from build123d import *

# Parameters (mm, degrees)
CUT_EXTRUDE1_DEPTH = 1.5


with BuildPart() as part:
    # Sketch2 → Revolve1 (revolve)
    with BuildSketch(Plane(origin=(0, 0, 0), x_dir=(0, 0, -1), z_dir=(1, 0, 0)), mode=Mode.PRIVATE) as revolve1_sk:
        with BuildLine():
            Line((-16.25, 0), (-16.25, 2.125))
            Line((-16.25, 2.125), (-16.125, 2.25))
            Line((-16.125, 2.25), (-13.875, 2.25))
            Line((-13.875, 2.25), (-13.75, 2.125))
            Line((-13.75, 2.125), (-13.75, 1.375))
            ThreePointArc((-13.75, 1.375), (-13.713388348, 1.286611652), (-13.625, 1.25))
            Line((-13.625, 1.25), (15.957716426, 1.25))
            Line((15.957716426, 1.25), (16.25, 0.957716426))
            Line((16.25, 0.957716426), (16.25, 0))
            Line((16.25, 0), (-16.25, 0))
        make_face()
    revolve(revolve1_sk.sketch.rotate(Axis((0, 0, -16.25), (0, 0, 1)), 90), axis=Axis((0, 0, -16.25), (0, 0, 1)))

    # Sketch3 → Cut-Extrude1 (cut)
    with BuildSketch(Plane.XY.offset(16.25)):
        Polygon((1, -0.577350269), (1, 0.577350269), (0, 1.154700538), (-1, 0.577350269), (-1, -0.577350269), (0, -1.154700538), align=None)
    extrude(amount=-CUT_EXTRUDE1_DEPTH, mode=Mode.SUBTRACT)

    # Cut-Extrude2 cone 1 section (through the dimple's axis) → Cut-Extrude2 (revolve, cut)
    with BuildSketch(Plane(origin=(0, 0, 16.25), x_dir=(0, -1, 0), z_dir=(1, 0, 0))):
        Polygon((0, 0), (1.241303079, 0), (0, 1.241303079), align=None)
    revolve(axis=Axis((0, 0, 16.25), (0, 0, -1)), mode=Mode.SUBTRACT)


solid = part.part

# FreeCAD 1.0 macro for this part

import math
import FreeCAD as App
import Part
import Sketcher
from FreeCAD import Vector
Q = App.Units.Quantity

doc = App.newDocument("Part")
body = doc.addObject("PartDesign::Body", "Body")

# Sketch on YZ plane
sketch1 = body.newObject("Sketcher::SketchObject", "Sketch")
sketch1.AttachmentSupport = (doc.getObject("YZ_Plane"), [""])
sketch1.MapMode = "FlatFace"
sketch1.addGeometry([
    Part.LineSegment(Vector(2.12, 16.25, 0), Vector(0, 16.25, 0)),  # 0
    Part.LineSegment(Vector(0, 16.25, 0), Vector(0, -16.25, 0)),  # 1
    Part.LineSegment(Vector(0, -16.25, 0), Vector(0.96, -16.25, 0)),  # 2
    Part.LineSegment(Vector(0.96, -16.25, 0), Vector(1.25, -15.96, 0)),  # 3
    Part.LineSegment(Vector(1.25, -15.96, 0), Vector(1.25, 13.62, 0)),  # 4
    Part.ArcOfCircle(Part.Circle(Vector(1.37, 13.63, 0), Vector(0, 0, 1), 0.12), math.radians(90), math.radians(180)),  # 5
    Part.LineSegment(Vector(1.38, 13.75, 0), Vector(2.12, 13.75, 0)),  # 6
    Part.LineSegment(Vector(2.12, 13.75, 0), Vector(2.25, 13.88, 0)),  # 7
    Part.LineSegment(Vector(2.25, 13.88, 0), Vector(2.25, 16.12, 0)),  # 8
    Part.LineSegment(Vector(2.25, 16.12, 0), Vector(2.12, 16.25, 0)),  # 9
], False)
sketch1.addConstraint([
    Sketcher.Constraint("Coincident", 0, 2, 1, 1),
    Sketcher.Constraint("Coincident", 1, 2, 2, 1),
    Sketcher.Constraint("Coincident", 2, 2, 3, 1),
    Sketcher.Constraint("Coincident", 3, 2, 4, 1),
    Sketcher.Constraint("Tangent", 4, 2, 5, 2),
    Sketcher.Constraint("Tangent", 5, 1, 6, 1),
    Sketcher.Constraint("Coincident", 6, 2, 7, 1),
    Sketcher.Constraint("Coincident", 7, 2, 8, 1),
    Sketcher.Constraint("Coincident", 8, 2, 9, 1),
    Sketcher.Constraint("Coincident", 9, 2, 0, 1),
    Sketcher.Constraint("Horizontal", 0),
    Sketcher.Constraint("Vertical", 1),
    Sketcher.Constraint("Horizontal", 2),
    Sketcher.Constraint("Vertical", 4),
    Sketcher.Constraint("Horizontal", 6),
    Sketcher.Constraint("Vertical", 8),
    Sketcher.Constraint("Symmetric", 0, 2, 1, 2, -1, 1),
    Sketcher.Constraint("Parallel", 3, 7),
    Sketcher.Constraint("Perpendicular", 7, 9),
    Sketcher.Constraint("Vertical", 6, 2, 9, 2),
    Sketcher.Constraint("Equal", 7, 9),
    Sketcher.Constraint("DistanceY", 1, 2, 1, 1, Q("32.5 mm")),
    Sketcher.Constraint("Radius", 5, Q("0.125 mm")),
    Sketcher.Constraint("DistanceY", 2, 2, 5, 1, Q("30 mm")),
    Sketcher.Constraint("DistanceX", 4, 2, 7, 2, Q("1 mm")),
    Sketcher.Constraint("DistanceX", 6, 1, 6, 2, Q("0.75 mm")),
    Sketcher.Constraint("DistanceX", 0, 2, 0, 1, Q("2.125 mm")),
    Sketcher.Constraint("Distance", 3, Q("0.413351 mm")),
])
revolution = body.newObject("PartDesign::Revolution", "Revolution")
revolution.Profile = sketch1
revolution.ReferenceAxis = (sketch1, ["V_Axis"])
revolution.Angle = 360

# Sketch on XY plane
sketch2 = body.newObject("Sketcher::SketchObject", "Sketch001")
sketch2.AttachmentSupport = (doc.getObject("XY_Plane"), [""])
sketch2.MapMode = "FlatFace"
sketch2.AttachmentOffset = App.Placement(Vector(0, 0, 16.25), App.Rotation())
sketch2.addGeometry([
    Part.LineSegment(Vector(1, -0.6, 0), Vector(1, 0.6, 0)),  # 0
    Part.LineSegment(Vector(1, 0.6, 0), Vector(0, 1.2, 0)),  # 1
    Part.LineSegment(Vector(0, 1.2, 0), Vector(-1, 0.6, 0)),  # 2
    Part.LineSegment(Vector(-1, 0.6, 0), Vector(-1, -0.6, 0)),  # 3
    Part.LineSegment(Vector(-1, -0.6, 0), Vector(0, -1.2, 0)),  # 4
    Part.LineSegment(Vector(0, -1.2, 0), Vector(1, -0.6, 0)),  # 5
], False)
sketch2.addConstraint([
    Sketcher.Constraint("Coincident", 0, 2, 1, 1),
    Sketcher.Constraint("Coincident", 1, 2, 2, 1),
    Sketcher.Constraint("Coincident", 2, 2, 3, 1),
    Sketcher.Constraint("Coincident", 3, 2, 4, 1),
    Sketcher.Constraint("Coincident", 4, 2, 5, 1),
    Sketcher.Constraint("Coincident", 5, 2, 0, 1),
    Sketcher.Constraint("Vertical", 0),
    Sketcher.Constraint("Vertical", 3),
    Sketcher.Constraint("Symmetric", 0, 2, 3, 2, -1, 1),
    Sketcher.Constraint("Symmetric", 1, 2, 4, 2, -1, 1),
    Sketcher.Constraint("PointOnObject", 1, 2, -2),
    Sketcher.Constraint("Parallel", 2, 5),
    Sketcher.Constraint("Horizontal", 0, 2, 2, 2),
    Sketcher.Constraint("Angle", 1, Q("150 deg")),
    Sketcher.Constraint("DistanceX", -1, 1, 0, 2, Q("1 mm")),
    Sketcher.Constraint("DistanceY", 0, 1, 0, 2, Q("1.154701 mm")),
])
pocket1 = body.newObject("PartDesign::Pocket", "Pocket")
pocket1.Profile = sketch2
pocket1.Length = 1.5

# Sketch on YZ plane
sketch3 = body.newObject("Sketcher::SketchObject", "Sketch002")
sketch3.AttachmentSupport = (doc.getObject("YZ_Plane"), [""])
sketch3.MapMode = "FlatFace"
sketch3.addGeometry([
    Part.LineSegment(Vector(0, 16.2, 0), Vector(-1.2, 16.2, 0)),
    Part.LineSegment(Vector(-1.2, 16.2, 0), Vector(0, 15, 0)),
    Part.LineSegment(Vector(0, 15, 0), Vector(0, 16.2, 0)),
], False)
sketch3.addConstraint([
    Sketcher.Constraint("Coincident", 0, 2, 1, 1),
    Sketcher.Constraint("Coincident", 1, 2, 2, 1),
    Sketcher.Constraint("Coincident", 2, 2, 0, 1),
    Sketcher.Constraint("Horizontal", 0),
    Sketcher.Constraint("Vertical", 2),
    Sketcher.Constraint("PointOnObject", 1, 2, -2),
    Sketcher.Constraint("Equal", 0, 2),
    Sketcher.Constraint("DistanceY", -1, 1, 0, 2, Q("16.25 mm")),
    Sketcher.Constraint("DistanceX", 0, 2, 0, 1, Q("1.241303 mm")),
])
groove = body.newObject("PartDesign::Groove", "Groove")
groove.Profile = sketch3
groove.ReferenceAxis = (sketch3, ["V_Axis"])
groove.Angle = 360

doc.recompute()
